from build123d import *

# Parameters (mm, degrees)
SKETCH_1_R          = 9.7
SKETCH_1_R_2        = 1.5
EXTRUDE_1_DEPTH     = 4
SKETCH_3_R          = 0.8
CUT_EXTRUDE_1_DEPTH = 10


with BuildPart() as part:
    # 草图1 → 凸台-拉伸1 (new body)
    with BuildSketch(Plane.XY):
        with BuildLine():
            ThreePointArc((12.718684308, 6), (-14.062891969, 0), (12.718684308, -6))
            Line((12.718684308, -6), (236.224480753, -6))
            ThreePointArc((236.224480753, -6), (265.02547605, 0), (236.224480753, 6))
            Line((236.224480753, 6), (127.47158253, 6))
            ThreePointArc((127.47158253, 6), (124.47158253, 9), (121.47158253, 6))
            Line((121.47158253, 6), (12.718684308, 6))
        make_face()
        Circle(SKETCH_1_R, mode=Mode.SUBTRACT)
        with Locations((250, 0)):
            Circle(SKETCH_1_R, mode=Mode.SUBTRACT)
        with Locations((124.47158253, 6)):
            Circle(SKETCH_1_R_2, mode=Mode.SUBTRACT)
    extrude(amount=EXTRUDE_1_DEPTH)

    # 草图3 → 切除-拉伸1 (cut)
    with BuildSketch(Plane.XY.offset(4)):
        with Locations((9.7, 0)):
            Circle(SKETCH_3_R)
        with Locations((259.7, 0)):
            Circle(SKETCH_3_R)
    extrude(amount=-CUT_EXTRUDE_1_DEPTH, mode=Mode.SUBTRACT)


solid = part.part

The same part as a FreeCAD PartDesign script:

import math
import FreeCAD as App
import Part
import Sketcher

V = App.Vector

doc = App.newDocument("Part")
body = doc.addObject("PartDesign::Body", "Body")

# Sketch on XY plane
sketch1 = body.newObject("Sketcher::SketchObject", "Sketch")
sketch1.AttachmentSupport = (doc.getObject("XY_Plane"), [""])
sketch1.MapMode = "FlatFace"
sketch1.addGeometry([
    Part.ArcOfCircle(Part.Circle(V(0, 0, 0), V(0, 0, 1), 14.1), math.radians(25), math.radians(335)),  # 0
    Part.LineSegment(V(12.7, -6, 0), V(236.2, -6, 0)),  # 1
    Part.ArcOfCircle(Part.Circle(V(250, 0, 0), V(0, 0, 1), 15), math.radians(-156), math.radians(156)),  # 2
    Part.LineSegment(V(236.2, 6, 0), V(127.5, 6, 0)),  # 3
    Part.ArcOfCircle(Part.Circle(V(124.5, 6, 0), V(0, 0, 1), 3), math.radians(0), math.radians(180)),  # 4
    Part.LineSegment(V(121.5, 6, 0), V(12.7, 6, 0)),  # 5
    Part.Circle(V(0, 0, 0), V(0, 0, 1), 9.7),  # 6
    Part.Circle(V(124.5, 6, 0), V(0, 0, 1), 1.5),  # 7
    Part.Circle(V(250, 0, 0), V(0, 0, 1), 9.7),  # 8
], False)
sketch1.addConstraint([
    Sketcher.Constraint("Coincident", 0, 2, 1, 1),
    Sketcher.Constraint("Coincident", 1, 2, 2, 1),
    Sketcher.Constraint("Coincident", 2, 2, 3, 1),
    Sketcher.Constraint("Coincident", 3, 2, 4, 1),
    Sketcher.Constraint("Coincident", 4, 2, 5, 1),
    Sketcher.Constraint("Coincident", 5, 2, 0, 1),
    Sketcher.Constraint("Horizontal", 1),
    Sketcher.Constraint("Horizontal", 3),
    Sketcher.Constraint("Horizontal", 5),
    Sketcher.Constraint("Coincident", 0, 3, -1, 1),
    Sketcher.Constraint("Coincident", 6, 3, -1, 1),
    Sketcher.Constraint("Coincident", 7, 3, 4, 3),
    Sketcher.Constraint("Coincident", 8, 3, 2, 3),
    Sketcher.Constraint("Equal", 6, 8),
    Sketcher.Constraint("Symmetric", 1, 2, 2, 2, -1),
    Sketcher.Constraint("Horizontal", 7, 3, 2, 2),
    Sketcher.Constraint("Horizontal", 3, 2, 4, 2),
    Sketcher.Constraint("Equal", 3, 5),
    Sketcher.Constraint("Diameter", 7, 3.0),
    Sketcher.Constraint("Radius", 4, 3.0),
    Sketcher.Constraint("Diameter", 6, 19.4),
    Sketcher.Constraint("DistanceX", -1, 1, 2, 3, 250.0),
    Sketcher.Constraint("DistanceY", -1, 1, 4, 3, 6.0),
    Sketcher.Constraint("Radius", 0, 14.062892),
    Sketcher.Constraint("DistanceX", 3, 2, 3, 1, 108.752898),
])
pad1 = body.newObject("PartDesign::Pad", "Pad")
pad1.Profile = sketch1
pad1.Length = 4

# Sketch on XY plane
sketch2 = body.newObject("Sketcher::SketchObject", "Sketch001")
sketch2.AttachmentSupport = (doc.getObject("XY_Plane"), [""])
sketch2.MapMode = "FlatFace"
sketch2.AttachmentOffset = App.Placement(V(0, 0, 4), App.Rotation())
sketch2.addGeometry([
    Part.Circle(V(9.7, 0, 0), V(0, 0, 1), 0.8),
    Part.Circle(V(259.7, 0, 0), V(0, 0, 1), 0.8),
], False)
sketch2.addConstraint([
    Sketcher.Constraint("Equal", 0, 1),
    Sketcher.Constraint("PointOnObject", 0, 3, -1),
    Sketcher.Constraint("PointOnObject", 1, 3, -1),
    Sketcher.Constraint("Diameter", 0, 1.6),
    Sketcher.Constraint("DistanceX", 0, 3, 1, 3, 250.0),
    Sketcher.Constraint("DistanceX", -1, 1, 0, 3, 9.7),
])
pocket1 = body.newObject("PartDesign::Pocket", "Pocket")
pocket1.Profile = sketch2
pocket1.Length = 10

doc.recompute()
